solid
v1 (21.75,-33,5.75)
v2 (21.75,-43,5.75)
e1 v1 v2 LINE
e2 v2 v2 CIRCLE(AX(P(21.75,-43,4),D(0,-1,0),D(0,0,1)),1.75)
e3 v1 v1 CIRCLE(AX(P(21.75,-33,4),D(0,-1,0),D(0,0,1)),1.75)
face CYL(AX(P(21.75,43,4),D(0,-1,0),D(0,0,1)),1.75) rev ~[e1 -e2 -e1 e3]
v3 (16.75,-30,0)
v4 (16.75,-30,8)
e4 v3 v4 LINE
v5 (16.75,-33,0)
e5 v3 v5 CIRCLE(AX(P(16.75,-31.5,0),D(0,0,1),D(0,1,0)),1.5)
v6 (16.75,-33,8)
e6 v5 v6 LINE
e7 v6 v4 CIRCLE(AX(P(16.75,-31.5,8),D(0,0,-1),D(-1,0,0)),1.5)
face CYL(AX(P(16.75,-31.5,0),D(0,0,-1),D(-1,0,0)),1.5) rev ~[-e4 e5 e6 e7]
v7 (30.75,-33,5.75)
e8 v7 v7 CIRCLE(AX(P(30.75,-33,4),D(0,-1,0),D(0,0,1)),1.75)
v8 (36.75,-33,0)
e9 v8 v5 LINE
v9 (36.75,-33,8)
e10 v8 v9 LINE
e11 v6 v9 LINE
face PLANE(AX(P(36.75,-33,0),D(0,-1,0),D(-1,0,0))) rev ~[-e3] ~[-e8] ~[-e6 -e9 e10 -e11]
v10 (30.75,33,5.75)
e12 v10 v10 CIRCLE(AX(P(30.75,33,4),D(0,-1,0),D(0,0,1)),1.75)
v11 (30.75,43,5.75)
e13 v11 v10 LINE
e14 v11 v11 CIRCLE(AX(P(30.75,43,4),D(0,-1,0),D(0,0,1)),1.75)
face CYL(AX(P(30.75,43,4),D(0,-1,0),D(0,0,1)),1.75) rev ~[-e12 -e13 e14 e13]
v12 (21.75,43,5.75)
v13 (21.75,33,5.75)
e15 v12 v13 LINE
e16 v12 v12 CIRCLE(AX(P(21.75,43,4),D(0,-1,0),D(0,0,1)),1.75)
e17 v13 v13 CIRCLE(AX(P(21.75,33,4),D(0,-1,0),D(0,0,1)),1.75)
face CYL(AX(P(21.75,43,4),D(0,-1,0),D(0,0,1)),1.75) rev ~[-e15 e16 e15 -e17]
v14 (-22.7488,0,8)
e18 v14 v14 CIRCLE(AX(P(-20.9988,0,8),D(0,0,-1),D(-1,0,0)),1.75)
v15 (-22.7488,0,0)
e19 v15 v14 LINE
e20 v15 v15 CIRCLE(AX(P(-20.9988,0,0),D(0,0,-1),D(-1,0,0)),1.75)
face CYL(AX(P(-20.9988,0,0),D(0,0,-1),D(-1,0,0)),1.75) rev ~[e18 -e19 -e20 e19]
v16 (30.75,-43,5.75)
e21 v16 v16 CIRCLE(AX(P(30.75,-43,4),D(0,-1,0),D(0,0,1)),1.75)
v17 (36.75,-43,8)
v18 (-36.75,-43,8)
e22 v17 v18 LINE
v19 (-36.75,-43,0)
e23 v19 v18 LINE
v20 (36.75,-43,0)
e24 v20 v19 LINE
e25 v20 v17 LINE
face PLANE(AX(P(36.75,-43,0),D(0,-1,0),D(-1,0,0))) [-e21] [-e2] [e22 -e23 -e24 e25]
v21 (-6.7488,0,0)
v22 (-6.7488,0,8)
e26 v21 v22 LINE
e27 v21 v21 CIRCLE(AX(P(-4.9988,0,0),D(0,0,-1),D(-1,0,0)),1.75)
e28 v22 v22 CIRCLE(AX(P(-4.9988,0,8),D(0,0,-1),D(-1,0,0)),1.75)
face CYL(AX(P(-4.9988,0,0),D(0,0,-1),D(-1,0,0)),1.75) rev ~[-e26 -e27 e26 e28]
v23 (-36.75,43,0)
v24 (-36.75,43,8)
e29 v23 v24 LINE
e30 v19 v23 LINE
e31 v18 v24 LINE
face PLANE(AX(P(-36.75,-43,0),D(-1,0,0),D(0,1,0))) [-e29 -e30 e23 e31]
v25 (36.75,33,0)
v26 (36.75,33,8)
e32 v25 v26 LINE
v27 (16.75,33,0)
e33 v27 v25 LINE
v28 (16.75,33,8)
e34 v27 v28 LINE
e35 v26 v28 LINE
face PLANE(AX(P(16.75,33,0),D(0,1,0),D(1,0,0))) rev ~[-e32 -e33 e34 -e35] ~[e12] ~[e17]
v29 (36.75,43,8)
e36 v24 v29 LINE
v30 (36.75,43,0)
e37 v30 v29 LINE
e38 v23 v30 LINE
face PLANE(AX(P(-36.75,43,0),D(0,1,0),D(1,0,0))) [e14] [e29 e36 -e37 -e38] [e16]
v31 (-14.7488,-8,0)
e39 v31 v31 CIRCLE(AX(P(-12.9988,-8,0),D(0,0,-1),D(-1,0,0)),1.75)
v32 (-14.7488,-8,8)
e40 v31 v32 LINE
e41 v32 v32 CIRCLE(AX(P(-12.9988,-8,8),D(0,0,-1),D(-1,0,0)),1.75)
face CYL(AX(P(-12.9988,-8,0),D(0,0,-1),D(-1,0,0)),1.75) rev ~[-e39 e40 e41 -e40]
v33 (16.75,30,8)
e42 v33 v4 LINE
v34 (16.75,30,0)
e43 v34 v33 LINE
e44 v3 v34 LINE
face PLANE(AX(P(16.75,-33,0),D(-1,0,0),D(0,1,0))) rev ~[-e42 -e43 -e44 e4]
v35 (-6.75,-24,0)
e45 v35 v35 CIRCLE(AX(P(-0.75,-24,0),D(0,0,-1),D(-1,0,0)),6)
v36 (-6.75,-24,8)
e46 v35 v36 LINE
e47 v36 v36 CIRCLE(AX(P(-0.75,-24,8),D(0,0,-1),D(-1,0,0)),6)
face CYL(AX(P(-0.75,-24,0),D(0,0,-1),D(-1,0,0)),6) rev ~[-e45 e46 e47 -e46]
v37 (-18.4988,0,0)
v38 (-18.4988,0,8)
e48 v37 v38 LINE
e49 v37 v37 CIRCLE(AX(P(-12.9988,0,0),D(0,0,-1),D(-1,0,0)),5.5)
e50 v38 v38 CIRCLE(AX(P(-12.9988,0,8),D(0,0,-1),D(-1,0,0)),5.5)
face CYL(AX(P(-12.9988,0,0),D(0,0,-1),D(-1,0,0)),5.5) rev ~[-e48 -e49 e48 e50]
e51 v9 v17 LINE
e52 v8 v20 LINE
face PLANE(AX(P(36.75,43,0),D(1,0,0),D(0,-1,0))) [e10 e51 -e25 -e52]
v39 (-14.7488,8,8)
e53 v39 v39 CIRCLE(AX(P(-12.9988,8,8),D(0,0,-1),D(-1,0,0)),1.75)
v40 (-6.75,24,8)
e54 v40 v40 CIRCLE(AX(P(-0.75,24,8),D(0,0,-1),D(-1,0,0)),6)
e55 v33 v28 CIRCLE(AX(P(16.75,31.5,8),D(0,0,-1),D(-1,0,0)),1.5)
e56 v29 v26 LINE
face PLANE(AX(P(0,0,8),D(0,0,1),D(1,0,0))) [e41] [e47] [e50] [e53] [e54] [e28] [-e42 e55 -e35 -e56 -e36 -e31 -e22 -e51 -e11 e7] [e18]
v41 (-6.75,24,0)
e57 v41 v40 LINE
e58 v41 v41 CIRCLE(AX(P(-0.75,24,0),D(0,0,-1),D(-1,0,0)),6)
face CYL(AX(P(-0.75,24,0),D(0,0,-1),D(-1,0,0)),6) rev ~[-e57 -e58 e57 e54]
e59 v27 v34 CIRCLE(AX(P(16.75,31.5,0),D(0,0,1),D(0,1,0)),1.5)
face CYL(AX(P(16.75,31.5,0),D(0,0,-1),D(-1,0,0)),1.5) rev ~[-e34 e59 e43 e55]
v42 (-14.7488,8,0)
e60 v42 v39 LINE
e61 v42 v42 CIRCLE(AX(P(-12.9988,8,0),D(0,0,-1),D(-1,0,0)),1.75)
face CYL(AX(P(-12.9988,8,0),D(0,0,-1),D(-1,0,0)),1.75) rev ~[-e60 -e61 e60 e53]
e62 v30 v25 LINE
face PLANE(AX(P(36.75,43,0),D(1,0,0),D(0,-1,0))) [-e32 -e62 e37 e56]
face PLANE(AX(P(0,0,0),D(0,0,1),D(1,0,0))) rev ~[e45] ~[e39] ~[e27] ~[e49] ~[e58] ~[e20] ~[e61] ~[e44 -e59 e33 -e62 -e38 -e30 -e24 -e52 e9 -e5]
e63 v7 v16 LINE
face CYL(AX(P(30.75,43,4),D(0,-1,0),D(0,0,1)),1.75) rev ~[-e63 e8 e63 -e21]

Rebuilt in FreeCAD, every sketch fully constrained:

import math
import FreeCAD as App
import Part
import Sketcher
from FreeCAD import Vector
Q = App.Units.Quantity

doc = App.newDocument("Part")
body = doc.addObject("PartDesign::Body", "Body")

# Sketch on XY plane
sketch1 = doc.addObject("Sketcher::SketchObject", "Sketch")
body.addObject(sketch1)
sketch1.AttachmentSupport = (doc.XY_Plane, [""])
sketch1.MapMode = "FlatFace"
sketch1.addGeometry([
    Part.LineSegment(Vector(37, 43, 0), Vector(-37, 43, 0)),
    Part.LineSegment(Vector(-37, 43, 0), Vector(-37, -43, 0)),
    Part.LineSegment(Vector(-37, -43, 0), Vector(37, -43, 0)),
    Part.LineSegment(Vector(37, -43, 0), Vector(37, 43, 0)),
], False)
sketch1.addConstraint([
    Sketcher.Constraint("Coincident", 0, 2, 1, 1),
    Sketcher.Constraint("Coincident", 1, 2, 2, 1),
    Sketcher.Constraint("Coincident", 2, 2, 3, 1),
    Sketcher.Constraint("Coincident", 3, 2, 0, 1),
    Sketcher.Constraint("Horizontal", 0),
    Sketcher.Constraint("Vertical", 1),
    Sketcher.Constraint("Horizontal", 2),
    Sketcher.Constraint("Vertical", 3),
    Sketcher.Constraint("Symmetric", 0, 2, 2, 2, -1, 1),
    Sketcher.Constraint("DistanceY", 1, 2, 1, 1, Q("86 mm")),
    Sketcher.Constraint("DistanceX", 0, 2, 0, 1, Q("73.5 mm")),
])
pad1 = doc.addObject("PartDesign::Pad", "Pad")
body.addObject(pad1)
pad1.Profile = sketch1
pad1.Length = 8

# Sketch on XY plane
sketch2 = doc.addObject("Sketcher::SketchObject", "Sketch001")
body.addObject(sketch2)
sketch2.AttachmentSupport = (doc.XY_Plane, [""])
sketch2.MapMode = "FlatFace"
sketch2.addGeometry([
    Part.LineSegment(Vector(37, 33, 0), Vector(37, -33, 0)),
    Part.LineSegment(Vector(37, -33, 0), Vector(17, -33, 0)),
    Part.LineSegment(Vector(17, -33, 0), Vector(17, 33, 0)),
    Part.LineSegment(Vector(17, 33, 0), Vector(37, 33, 0)),
], False)
sketch2.addConstraint([
    Sketcher.Constraint("Coincident", 0, 2, 1, 1),
    Sketcher.Constraint("Coincident", 1, 2, 2, 1),
    Sketcher.Constraint("Coincident", 2, 2, 3, 1),
    Sketcher.Constraint("Coincident", 3, 2, 0, 1),
    Sketcher.Constraint("Vertical", 0),
    Sketcher.Constraint("Horizontal", 1),
    Sketcher.Constraint("Vertical", 2),
    Sketcher.Constraint("Horizontal", 3),
    Sketcher.Constraint("DistanceX", 1, 2, 1, 1, Q("20 mm")),
    Sketcher.Constraint("DistanceY", 0, 2, 0, 1, Q("66 mm")),
    Sketcher.Constraint("DistanceY", 0, 2, -1, 1, Q("33 mm")),
    Sketcher.Constraint("DistanceX", -1, 1, 0, 2, Q("36.75 mm")),
])
pocket1 = doc.addObject("PartDesign::Pocket", "Pocket")
body.addObject(pocket1)
pocket1.Profile = sketch2
pocket1.Length = 10
pocket1.Reversed = True

# Sketch on XY plane
sketch3 = doc.addObject("Sketcher::SketchObject", "Sketch002")
body.addObject(sketch3)
sketch3.AttachmentSupport = (doc.XY_Plane, [""])
sketch3.MapMode = "FlatFace"
sketch3.addGeometry([
    Part.Circle(Vector(-1, -24, 0), Vector(0, 0, 1), 6),
    Part.Circle(Vector(-1, 24, 0), Vector(0, 0, 1), 6),
], False)
sketch3.addConstraint([
    Sketcher.Constraint("Equal", 0, 1),
    Sketcher.Constraint("Symmetric", 0, 3, 1, 3, -1),
    Sketcher.Constraint("Diameter", 0, Q("12 mm")),
    Sketcher.Constraint("DistanceY", 0, 3, -1, 1, Q("24 mm")),
    Sketcher.Constraint("DistanceX", 0, 3, -1, 1, Q("0.75 mm")),
])
pocket2 = doc.addObject("PartDesign::Pocket", "Pocket001")
body.addObject(pocket2)
pocket2.Profile = sketch3
pocket2.Length = 10
pocket2.Reversed = True

# Sketch on XY plane
sketch4 = doc.addObject("Sketcher::SketchObject", "Sketch003")
body.addObject(sketch4)
sketch4.AttachmentSupport = (doc.XY_Plane, [""])
sketch4.MapMode = "FlatFace"
sketch4.addGeometry([
    Part.Circle(Vector(-13, -8, 0), Vector(0, 0, 1), 1.8),  # 0
    Part.Circle(Vector(-5, 0, 0), Vector(0, 0, 1), 1.8),  # 1
    Part.Circle(Vector(-13, 8, 0), Vector(0, 0, 1), 1.8),  # 2
    Part.Circle(Vector(-21, 0, 0), Vector(0, 0, 1), 1.8),  # 3
    Part.Circle(Vector(-13, 0, 0), Vector(0, 0, 1), 5.5),  # 4
], False)
sketch4.addConstraint([
    Sketcher.Constraint("Equal", 0, 1),
    Sketcher.Constraint("Equal", 1, 2),
    Sketcher.Constraint("Equal", 2, 3),
    Sketcher.Constraint("Symmetric", 0, 3, 2, 3, -1),
    Sketcher.Constraint("PointOnObject", 1, 3, -1),
    Sketcher.Constraint("PointOnObject", 3, 3, -1),
    Sketcher.Constraint("PointOnObject", 4, 3, -1),
    Sketcher.Constraint("Vertical", 2, 3, 4, 3),
    Sketcher.Constraint("Diameter", 4, Q("11 mm")),
    Sketcher.Constraint("Diameter", 0, Q("3.5 mm")),
    Sketcher.Constraint("DistanceY", 0, 3, 2, 3, Q("16 mm")),
    Sketcher.Constraint("DistanceX", 3, 3, 1, 3, Q("16 mm")),
    Sketcher.Constraint("DistanceX", 0, 3, 1, 3, Q("8 mm")),
    Sketcher.Constraint("DistanceX", 0, 3, -1, 1, Q("12.9988 mm")),
])
pocket3 = doc.addObject("PartDesign::Pocket", "Pocket002")
body.addObject(pocket3)
pocket3.Profile = sketch4
pocket3.Length = 10
pocket3.Reversed = True

# Sketch on XZ plane
sketch5 = doc.addObject("Sketcher::SketchObject", "Sketch004")
body.addObject(sketch5)
sketch5.AttachmentSupport = (doc.XZ_Plane, [""])
sketch5.MapMode = "FlatFace"
sketch5.AttachmentOffset = App.Placement(Vector(0, 0, -43), App.Rotation())
sketch5.addGeometry([
    Part.Circle(Vector(21.8, 4, 0), Vector(0, 0, 1), 1.8),
    Part.Circle(Vector(30.8, 4, 0), Vector(0, 0, 1), 1.8),
], False)
sketch5.addConstraint([
    Sketcher.Constraint("Equal", 0, 1),
    Sketcher.Constraint("Horizontal", 0, 3, 1, 3),
    Sketcher.Constraint("Diameter", 0, Q("3.5 mm")),
    Sketcher.Constraint("DistanceY", -1, 1, 0, 3, Q("4 mm")),
    Sketcher.Constraint("DistanceX", 0, 3, 1, 3, Q("9 mm")),
    Sketcher.Constraint("DistanceX", -1, 1, 0, 3, Q("21.75 mm")),
])
doc.recompute()
hole = doc.addObject("PartDesign::Hole", "Hole")
body.addObject(hole)
hole.Profile = sketch5
hole.ThreadType = "None"
hole.Diameter = 3.5
hole.DepthType = "ThroughAll"
hole.Reversed = True

# Sketch on XY plane
sketch6 = doc.addObject("Sketcher::SketchObject", "Sketch005")
body.addObject(sketch6)
sketch6.AttachmentSupport = (doc.XY_Plane, [""])
sketch6.MapMode = "FlatFace"
sketch6.addGeometry([
    Part.ArcOfCircle(Part.Circle(Vector(16.8, 31.5, 0), Vector(0, 0, 1), 1.5), math.radians(90), math.radians(270)),
    Part.LineSegment(Vector(16.8, 33, 0), Vector(16.8, 30, 0)),
    Part.ArcOfCircle(Part.Circle(Vector(16.8, -31.5, 0), Vector(0, 0, 1), 1.5), math.radians(90), math.radians(270)),
    Part.LineSegment(Vector(16.8, -30, 0), Vector(16.8, -33, 0)),
], False)
sketch6.addConstraint([
    Sketcher.Constraint("Coincident", 0, 1, 1, 1),
    Sketcher.Constraint("Coincident", 1, 2, 0, 2),
    Sketcher.Constraint("Coincident", 2, 1, 3, 1),
    Sketcher.Constraint("Coincident", 3, 2, 2, 2),
    Sketcher.Constraint("Vertical", 1),
    Sketcher.Constraint("Vertical", 3),
    Sketcher.Constraint("Equal", 0, 2),
    Sketcher.Constraint("Symmetric", 0, 3, 2, 3, -1),
    Sketcher.Constraint("Vertical", 2, 3, 0, 1),
    Sketcher.Constraint("Vertical", 1, 2, 2, 1),
    Sketcher.Constraint("Radius", 0, Q("1.5 mm")),
    Sketcher.Constraint("DistanceY", -1, 1, 0, 1, Q("33 mm")),
    Sketcher.Constraint("DistanceX", -1, 1, 0, 3, Q("16.75 mm")),
])
pocket4 = doc.addObject("PartDesign::Pocket", "Pocket003")
body.addObject(pocket4)
pocket4.Profile = sketch6
pocket4.Type = "ThroughAll"
pocket4.Reversed = True

doc.recompute()
